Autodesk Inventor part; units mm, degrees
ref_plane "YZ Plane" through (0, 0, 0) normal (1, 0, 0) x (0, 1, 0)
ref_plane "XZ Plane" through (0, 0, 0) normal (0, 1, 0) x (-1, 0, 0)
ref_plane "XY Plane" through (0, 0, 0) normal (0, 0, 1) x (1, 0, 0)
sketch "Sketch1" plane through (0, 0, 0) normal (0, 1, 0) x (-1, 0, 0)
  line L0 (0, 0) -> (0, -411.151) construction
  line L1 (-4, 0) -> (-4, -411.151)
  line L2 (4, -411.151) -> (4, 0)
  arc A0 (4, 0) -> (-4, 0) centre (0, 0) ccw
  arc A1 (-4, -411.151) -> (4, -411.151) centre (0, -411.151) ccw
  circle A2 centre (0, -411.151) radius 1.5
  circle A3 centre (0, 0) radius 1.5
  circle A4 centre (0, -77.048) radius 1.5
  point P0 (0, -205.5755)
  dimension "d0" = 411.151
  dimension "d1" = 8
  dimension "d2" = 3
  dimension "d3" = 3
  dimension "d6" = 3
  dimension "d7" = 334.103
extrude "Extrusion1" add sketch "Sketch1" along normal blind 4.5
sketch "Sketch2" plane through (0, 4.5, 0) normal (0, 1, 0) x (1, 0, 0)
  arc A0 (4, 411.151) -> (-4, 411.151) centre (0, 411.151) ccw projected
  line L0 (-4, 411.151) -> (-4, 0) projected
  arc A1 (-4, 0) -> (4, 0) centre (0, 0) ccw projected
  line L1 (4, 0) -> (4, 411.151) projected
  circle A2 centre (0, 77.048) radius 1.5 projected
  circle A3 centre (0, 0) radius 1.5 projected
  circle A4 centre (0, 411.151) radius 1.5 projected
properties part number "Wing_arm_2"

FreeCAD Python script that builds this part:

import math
import FreeCAD as App
import Part
import Sketcher
from FreeCAD import Vector
Q = App.Units.Quantity

doc = App.newDocument("Part")
body = doc.addObject("PartDesign::Body", "Body")

# Sketch on XZ plane
sketch1 = body.newObject("Sketcher::SketchObject", "Sketch")
sketch1.AttachmentSupport = (doc.getObject("XZ_Plane"), [""])
sketch1.MapMode = "FlatFace"
sketch1.addGeometry(Part.ArcOfCircle(Part.Circle(Vector(0, 0, 0), Vector(0, 0, 1), 4), math.radians(0), math.radians(180)), False)
sketch1.addGeometry(Part.LineSegment(Vector(4, 0, 0), Vector(4, -411.2, 0)), False)
sketch1.addGeometry(Part.ArcOfCircle(Part.Circle(Vector(0, -411.2, 0), Vector(0, 0, 1), 4), math.radians(180), math.radians(360)), False)
sketch1.addGeometry(Part.LineSegment(Vector(-4, -411.2, 0), Vector(-4, 0, 0)), False)
sketch1.addGeometry(Part.Circle(Vector(0, -411.2, 0), Vector(0, 0, 1), 1.5), False)
sketch1.addGeometry(Part.Circle(Vector(0, -77, 0), Vector(0, 0, 1), 1.5), False)
sketch1.addGeometry(Part.Circle(Vector(0, 0, 0), Vector(0, 0, 1), 1.5), False)
sketch1.addConstraint(Sketcher.Constraint("Tangent", 0, 1, 1, 1))
sketch1.addConstraint(Sketcher.Constraint("Tangent", 1, 2, 2, 2))
sketch1.addConstraint(Sketcher.Constraint("Tangent", 2, 1, 3, 1))
sketch1.addConstraint(Sketcher.Constraint("Tangent", 3, 2, 0, 2))
sketch1.addConstraint(Sketcher.Constraint("Vertical", 1))
sketch1.addConstraint(Sketcher.Constraint("Vertical", 3))
sketch1.addConstraint(Sketcher.Constraint("Coincident", 0, 3, -1, 1))
sketch1.addConstraint(Sketcher.Constraint("Coincident", 6, 3, -1, 1))
sketch1.addConstraint(Sketcher.Constraint("Coincident", 4, 3, 2, 3))
sketch1.addConstraint(Sketcher.Constraint("Equal", 4, 5))
sketch1.addConstraint(Sketcher.Constraint("Equal", 5, 6))
sketch1.addConstraint(Sketcher.Constraint("PointOnObject", 5, 3, -2))
sketch1.addConstraint(Sketcher.Constraint("Diameter", 4, Q("3 mm")))
sketch1.addConstraint(Sketcher.Constraint("Radius", 0, Q("4 mm")))
sketch1.addConstraint(Sketcher.Constraint("DistanceY", 1, 2, 1, 1, Q("411.151 mm")))
sketch1.addConstraint(Sketcher.Constraint("DistanceY", 2, 3, 5, 3, Q("334.103 mm")))
pad1 = body.newObject("PartDesign::Pad", "Pad")
pad1.Profile = sketch1
pad1.Length = 4.5
pad1.Reversed = True

doc.recompute()
